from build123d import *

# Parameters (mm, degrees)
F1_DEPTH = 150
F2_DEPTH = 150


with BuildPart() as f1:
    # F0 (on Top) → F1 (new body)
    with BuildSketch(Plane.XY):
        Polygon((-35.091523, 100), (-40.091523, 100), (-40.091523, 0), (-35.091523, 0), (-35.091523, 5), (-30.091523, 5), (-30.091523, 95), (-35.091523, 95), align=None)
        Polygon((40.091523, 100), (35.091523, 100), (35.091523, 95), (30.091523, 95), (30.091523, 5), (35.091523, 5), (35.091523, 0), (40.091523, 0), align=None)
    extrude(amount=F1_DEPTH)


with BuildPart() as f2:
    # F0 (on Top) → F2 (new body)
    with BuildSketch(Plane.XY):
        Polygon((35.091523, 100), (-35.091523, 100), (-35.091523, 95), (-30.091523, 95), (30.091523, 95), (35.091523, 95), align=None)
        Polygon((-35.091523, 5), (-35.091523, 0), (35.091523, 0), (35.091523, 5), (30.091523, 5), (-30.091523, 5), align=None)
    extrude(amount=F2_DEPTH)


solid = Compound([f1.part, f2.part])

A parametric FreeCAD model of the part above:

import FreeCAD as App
import Part
import Sketcher
from FreeCAD import Vector
Q = App.Units.Quantity

doc = App.newDocument("Part")
body = doc.addObject("PartDesign::Body", "Body")
body.AllowCompound = True

sketch1 = body.newObject("Sketcher::SketchObject", "Sketch")
sketch1.AttachmentSupport = (doc.getObject("XY_Plane"), [""])
sketch1.MapMode = "FlatFace"
sketch1.addGeometry([
    Part.LineSegment(Vector(-35.091523, 100, 0), Vector(-40.091523, 100, 0)),
    Part.LineSegment(Vector(-40.091523, 100, 0), Vector(-40.091523, 0, 0)),
    Part.LineSegment(Vector(-40.091523, 0, 0), Vector(-35.091523, 0, 0)),
    Part.LineSegment(Vector(-35.091523, 0, 0), Vector(-35.091523, 5, 0)),
    Part.LineSegment(Vector(-35.091523, 5, 0), Vector(-30.091523, 5, 0)),
    Part.LineSegment(Vector(-30.091523, 5, 0), Vector(-30.091523, 95, 0)),
    Part.LineSegment(Vector(-30.091523, 95, 0), Vector(-35.091523, 95, 0)),
    Part.LineSegment(Vector(-35.091523, 95, 0), Vector(-35.091523, 100, 0)),
    Part.LineSegment(Vector(40.091523, 100, 0), Vector(35.091523, 100, 0)),
    Part.LineSegment(Vector(35.091523, 100, 0), Vector(35.091523, 95, 0)),
    Part.LineSegment(Vector(35.091523, 95, 0), Vector(30.091523, 95, 0)),
    Part.LineSegment(Vector(30.091523, 95, 0), Vector(30.091523, 5, 0)),
    Part.LineSegment(Vector(30.091523, 5, 0), Vector(35.091523, 5, 0)),
    Part.LineSegment(Vector(35.091523, 5, 0), Vector(35.091523, 0, 0)),
    Part.LineSegment(Vector(35.091523, 0, 0), Vector(40.091523, 0, 0)),
    Part.LineSegment(Vector(40.091523, 0, 0), Vector(40.091523, 100, 0)),
], False)
sketch1.addConstraint([
    Sketcher.Constraint("Coincident", 0, 2, 1, 1),
    Sketcher.Constraint("Coincident", 1, 2, 2, 1),
    Sketcher.Constraint("Coincident", 2, 2, 3, 1),
    Sketcher.Constraint("Coincident", 3, 2, 4, 1),
    Sketcher.Constraint("Coincident", 4, 2, 5, 1),
    Sketcher.Constraint("Coincident", 5, 2, 6, 1),
    Sketcher.Constraint("Coincident", 6, 2, 7, 1),
    Sketcher.Constraint("Coincident", 7, 2, 0, 1),
    Sketcher.Constraint("Coincident", 8, 2, 9, 1),
    Sketcher.Constraint("Coincident", 9, 2, 10, 1),
    Sketcher.Constraint("Coincident", 10, 2, 11, 1),
    Sketcher.Constraint("Coincident", 11, 2, 12, 1),
    Sketcher.Constraint("Coincident", 12, 2, 13, 1),
    Sketcher.Constraint("Coincident", 13, 2, 14, 1),
    Sketcher.Constraint("Coincident", 14, 2, 15, 1),
    Sketcher.Constraint("Coincident", 15, 2, 8, 1),
    Sketcher.Constraint("Horizontal", 0),
    Sketcher.Constraint("Vertical", 1),
    Sketcher.Constraint("Horizontal", 2),
    Sketcher.Constraint("Vertical", 3),
    Sketcher.Constraint("Horizontal", 4),
    Sketcher.Constraint("Vertical", 5),
    Sketcher.Constraint("Horizontal", 6),
    Sketcher.Constraint("Vertical", 7),
    Sketcher.Constraint("Horizontal", 8),
    Sketcher.Constraint("Vertical", 9),
    Sketcher.Constraint("Horizontal", 10),
    Sketcher.Constraint("Vertical", 11),
    Sketcher.Constraint("Horizontal", 12),
    Sketcher.Constraint("Vertical", 13),
    Sketcher.Constraint("Horizontal", 14),
    Sketcher.Constraint("Vertical", 15),
    Sketcher.Constraint("Symmetric", 2, 2, 13, 2, -1, 1),
    Sketcher.Constraint("Symmetric", 7, 2, 8, 2, -2),
    Sketcher.Constraint("Symmetric", 5, 2, 10, 2, -2),
    Sketcher.Constraint("Symmetric", 1, 2, 14, 2, -2),
    Sketcher.Constraint("Horizontal", 4, 2, 11, 2),
    Sketcher.Constraint("Vertical", 3, 2, 6, 2),
    Sketcher.Constraint("Equal", 2, 4),
    Sketcher.Constraint("Equal", 14, 3),
    Sketcher.Constraint("Equal", 3, 7),
    Sketcher.Constraint("DistanceX", 0, 2, 0, 1, Q("5 mm")),
    Sketcher.Constraint("DistanceY", 1, 2, 1, 1, Q("100 mm")),
    Sketcher.Constraint("DistanceX", 0, 2, -1, 1, Q("40.091523 mm")),
])
pad1 = body.newObject("PartDesign::Pad", "Pad")
pad1.Profile = sketch1
pad1.Length = 150
body2 = doc.addObject("PartDesign::Body", "Body001")
body2.AllowCompound = True

sketch2 = body2.newObject("Sketcher::SketchObject", "Sketch001")
sketch2.AttachmentSupport = (doc.getObject("XY_Plane001"), [""])
sketch2.MapMode = "FlatFace"
sketch2.addGeometry([
    Part.LineSegment(Vector(35.091523, 100, 0), Vector(-35.091523, 100, 0)),
    Part.LineSegment(Vector(-35.091523, 100, 0), Vector(-35.091523, 95, 0)),
    Part.LineSegment(Vector(-35.091523, 95, 0), Vector(35.091523, 95, 0)),
    Part.LineSegment(Vector(35.091523, 95, 0), Vector(35.091523, 100, 0)),
    Part.LineSegment(Vector(-35.091523, 5, 0), Vector(-35.091523, 0, 0)),
    Part.LineSegment(Vector(-35.091523, 0, 0), Vector(35.091523, 0, 0)),
    Part.LineSegment(Vector(35.091523, 0, 0), Vector(35.091523, 5, 0)),
    Part.LineSegment(Vector(35.091523, 5, 0), Vector(-35.091523, 5, 0)),
], False)
sketch2.addConstraint([
    Sketcher.Constraint("Coincident", 0, 2, 1, 1),
    Sketcher.Constraint("Coincident", 1, 2, 2, 1),
    Sketcher.Constraint("Coincident", 2, 2, 3, 1),
    Sketcher.Constraint("Coincident", 3, 2, 0, 1),
    Sketcher.Constraint("Coincident", 4, 2, 5, 1),
    Sketcher.Constraint("Coincident", 5, 2, 6, 1),
    Sketcher.Constraint("Coincident", 6, 2, 7, 1),
    Sketcher.Constraint("Coincident", 7, 2, 4, 1),
    Sketcher.Constraint("Horizontal", 0),
    Sketcher.Constraint("Vertical", 1),
    Sketcher.Constraint("Horizontal", 2),
    Sketcher.Constraint("Vertical", 3),
    Sketcher.Constraint("Vertical", 4),
    Sketcher.Constraint("Horizontal", 5),
    Sketcher.Constraint("Vertical", 6),
    Sketcher.Constraint("Horizontal", 7),
    Sketcher.Constraint("Symmetric", 4, 2, 5, 2, -1, 1),
    Sketcher.Constraint("Vertical", 1, 2, 4, 2),
    Sketcher.Constraint("Vertical", 3, 2, 5, 2),
    Sketcher.Constraint("Equal", 3, 4),
    Sketcher.Constraint("DistanceY", 1, 2, 1, 1, Q("5 mm")),
    Sketcher.Constraint("DistanceY", -1, 1, 0, 2, Q("100 mm")),
    Sketcher.Constraint("DistanceX", 0, 2, 0, 1, Q("70.183046 mm")),
])
pad2 = body2.newObject("PartDesign::Pad", "Pad001")
pad2.Profile = sketch2
pad2.Length = 150

doc.recompute()
